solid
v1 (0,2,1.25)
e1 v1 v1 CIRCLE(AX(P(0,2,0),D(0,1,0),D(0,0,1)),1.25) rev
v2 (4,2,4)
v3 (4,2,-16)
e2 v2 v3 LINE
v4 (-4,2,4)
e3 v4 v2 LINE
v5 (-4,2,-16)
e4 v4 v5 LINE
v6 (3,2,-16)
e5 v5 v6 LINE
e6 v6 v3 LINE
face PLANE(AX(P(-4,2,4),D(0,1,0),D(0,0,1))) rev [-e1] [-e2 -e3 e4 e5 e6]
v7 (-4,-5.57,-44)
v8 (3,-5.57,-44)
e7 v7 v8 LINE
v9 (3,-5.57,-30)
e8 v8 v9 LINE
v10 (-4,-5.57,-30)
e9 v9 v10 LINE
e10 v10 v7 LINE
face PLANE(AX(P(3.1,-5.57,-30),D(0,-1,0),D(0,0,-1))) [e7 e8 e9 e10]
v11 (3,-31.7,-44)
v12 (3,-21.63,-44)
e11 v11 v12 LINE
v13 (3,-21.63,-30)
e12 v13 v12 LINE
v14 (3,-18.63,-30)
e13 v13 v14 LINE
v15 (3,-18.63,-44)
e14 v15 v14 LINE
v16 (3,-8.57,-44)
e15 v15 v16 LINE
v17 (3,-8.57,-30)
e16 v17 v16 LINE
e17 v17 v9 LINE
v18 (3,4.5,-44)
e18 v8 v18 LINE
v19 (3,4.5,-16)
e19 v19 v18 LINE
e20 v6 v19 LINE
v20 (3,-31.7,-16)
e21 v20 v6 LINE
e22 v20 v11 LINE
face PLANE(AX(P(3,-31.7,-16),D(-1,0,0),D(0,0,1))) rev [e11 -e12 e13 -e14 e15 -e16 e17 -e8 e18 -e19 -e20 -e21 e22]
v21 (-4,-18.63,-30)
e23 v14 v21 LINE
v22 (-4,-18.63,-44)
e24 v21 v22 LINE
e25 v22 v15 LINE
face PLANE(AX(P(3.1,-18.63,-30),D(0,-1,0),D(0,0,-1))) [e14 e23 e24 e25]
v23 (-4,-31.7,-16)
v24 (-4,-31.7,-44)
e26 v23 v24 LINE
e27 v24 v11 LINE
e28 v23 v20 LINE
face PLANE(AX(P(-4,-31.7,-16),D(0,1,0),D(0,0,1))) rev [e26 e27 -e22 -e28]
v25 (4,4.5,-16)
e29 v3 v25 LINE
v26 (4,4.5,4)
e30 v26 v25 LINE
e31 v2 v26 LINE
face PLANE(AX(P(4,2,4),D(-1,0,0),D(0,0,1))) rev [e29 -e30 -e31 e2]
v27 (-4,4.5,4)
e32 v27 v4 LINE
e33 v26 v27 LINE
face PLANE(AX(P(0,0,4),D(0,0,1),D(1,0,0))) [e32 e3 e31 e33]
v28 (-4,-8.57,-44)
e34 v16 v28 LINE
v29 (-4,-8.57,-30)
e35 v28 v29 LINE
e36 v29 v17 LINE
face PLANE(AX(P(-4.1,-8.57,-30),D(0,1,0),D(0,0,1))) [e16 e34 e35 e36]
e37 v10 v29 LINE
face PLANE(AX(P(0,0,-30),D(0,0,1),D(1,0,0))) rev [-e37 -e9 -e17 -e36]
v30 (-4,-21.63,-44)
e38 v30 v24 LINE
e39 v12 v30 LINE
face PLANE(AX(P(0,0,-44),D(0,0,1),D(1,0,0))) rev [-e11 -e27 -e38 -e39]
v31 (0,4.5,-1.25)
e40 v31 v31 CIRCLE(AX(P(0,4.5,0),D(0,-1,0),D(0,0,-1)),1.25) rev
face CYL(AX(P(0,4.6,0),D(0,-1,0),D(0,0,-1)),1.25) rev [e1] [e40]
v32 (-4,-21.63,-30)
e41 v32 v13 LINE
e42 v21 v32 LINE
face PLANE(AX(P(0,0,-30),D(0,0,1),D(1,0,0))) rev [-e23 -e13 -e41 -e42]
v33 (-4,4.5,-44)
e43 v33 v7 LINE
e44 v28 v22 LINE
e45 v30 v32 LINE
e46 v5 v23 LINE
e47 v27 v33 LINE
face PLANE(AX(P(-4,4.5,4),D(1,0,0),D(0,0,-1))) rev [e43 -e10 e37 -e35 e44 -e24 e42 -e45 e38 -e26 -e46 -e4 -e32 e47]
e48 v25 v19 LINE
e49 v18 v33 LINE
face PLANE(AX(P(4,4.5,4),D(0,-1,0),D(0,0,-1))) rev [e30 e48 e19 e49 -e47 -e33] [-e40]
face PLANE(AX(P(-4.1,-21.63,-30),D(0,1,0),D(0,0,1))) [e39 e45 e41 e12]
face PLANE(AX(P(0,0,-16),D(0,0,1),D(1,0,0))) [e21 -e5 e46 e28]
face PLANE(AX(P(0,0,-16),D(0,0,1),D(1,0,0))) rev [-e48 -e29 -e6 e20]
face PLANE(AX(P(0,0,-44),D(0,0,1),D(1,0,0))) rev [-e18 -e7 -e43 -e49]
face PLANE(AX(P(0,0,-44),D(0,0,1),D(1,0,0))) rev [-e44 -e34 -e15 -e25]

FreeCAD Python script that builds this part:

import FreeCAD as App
import Part
import Sketcher
from FreeCAD import Vector

doc = App.newDocument("Part")
body = doc.addObject("PartDesign::Body", "Body")

sketch1 = body.newObject("Sketcher::SketchObject", "Sketch")
sketch1.AttachmentSupport = (doc.getObject("XY_Plane"), [""])
sketch1.MapMode = "FlatFace"
sketch1.AttachmentOffset = App.Placement(Vector(0, 0, -16), App.Rotation())
sketch1.addGeometry([
    Part.LineSegment(Vector(-4, 4.5, 0), Vector(-4, 2, 0)),
    Part.LineSegment(Vector(-4, 2, 0), Vector(4, 2, 0)),
    Part.LineSegment(Vector(4, 2, 0), Vector(4, 4.5, 0)),
    Part.LineSegment(Vector(4, 4.5, 0), Vector(-4, 4.5, 0)),
], False)
sketch1.addConstraint([
    Sketcher.Constraint("Coincident", 0, 2, 1, 1),
    Sketcher.Constraint("Coincident", 1, 2, 2, 1),
    Sketcher.Constraint("Coincident", 2, 2, 3, 1),
    Sketcher.Constraint("Coincident", 3, 2, 0, 1),
    Sketcher.Constraint("Vertical", 0),
    Sketcher.Constraint("Horizontal", 1),
    Sketcher.Constraint("Vertical", 2),
    Sketcher.Constraint("Horizontal", 3),
    Sketcher.Constraint("DistanceX", 1, 1, 1, 2, 8.0),
    Sketcher.Constraint("DistanceY", 0, 2, 0, 1, 2.5),
    Sketcher.Constraint("DistanceX", 0, 2, -1, 1, 4.0),
    Sketcher.Constraint("DistanceY", -1, 1, 0, 2, 2.0),
])
pad1 = body.newObject("PartDesign::Pad", "Pad")
pad1.Profile = sketch1
pad1.Length = 20

sketch2 = body.newObject("Sketcher::SketchObject", "Sketch001")
sketch2.AttachmentSupport = (doc.getObject("XY_Plane"), [""])
sketch2.MapMode = "FlatFace"
sketch2.AttachmentOffset = App.Placement(Vector(0, 0, -44), App.Rotation())
sketch2.addGeometry([
    Part.LineSegment(Vector(-4, 4, 0), Vector(-4, -32, 0)),
    Part.LineSegment(Vector(-4, -32, 0), Vector(3, -32, 0)),
    Part.LineSegment(Vector(3, -32, 0), Vector(3, 4, 0)),
    Part.LineSegment(Vector(3, 4, 0), Vector(-4, 4, 0)),
], False)
sketch2.addConstraint([
    Sketcher.Constraint("Coincident", 0, 2, 1, 1),
    Sketcher.Constraint("Coincident", 1, 2, 2, 1),
    Sketcher.Constraint("Coincident", 2, 2, 3, 1),
    Sketcher.Constraint("Coincident", 3, 2, 0, 1),
    Sketcher.Constraint("Vertical", 0),
    Sketcher.Constraint("Horizontal", 1),
    Sketcher.Constraint("Vertical", 2),
    Sketcher.Constraint("Horizontal", 3),
    Sketcher.Constraint("DistanceX", 1, 1, 1, 2, 7.0),
    Sketcher.Constraint("DistanceY", 0, 2, 0, 1, 36.2),
    Sketcher.Constraint("DistanceX", 0, 2, -1, 1, 4.0),
    Sketcher.Constraint("DistanceY", 0, 2, -1, 1, 31.7),
])
pad2 = body.newObject("PartDesign::Pad", "Pad001")
pad2.Profile = sketch2
pad2.Length = 28

sketch3 = body.newObject("Sketcher::SketchObject", "Sketch002")
sketch3.AttachmentSupport = (doc.getObject("XZ_Plane"), [""])
sketch3.MapMode = "FlatFace"
sketch3.AttachmentOffset = App.Placement(Vector(0, 0, -1.9), App.Rotation())
sketch3.addGeometry(Part.Circle(Vector(0, 0, 0), Vector(0, 0, 1), 1.2), False)
sketch3.addConstraint([
    Sketcher.Constraint("Coincident", 0, 3, -1, 1),
    Sketcher.Constraint("Diameter", 0, 2.5),
])
pocket1 = body.newObject("PartDesign::Pocket", "Pocket")
pocket1.Profile = sketch3
pocket1.Length = 2.7

sketch4 = body.newObject("Sketcher::SketchObject", "Sketch003")
sketch4.AttachmentSupport = (doc.getObject("XY_Plane"), [""])
sketch4.MapMode = "FlatFace"
sketch4.AttachmentOffset = App.Placement(Vector(0, 0, -44.1), App.Rotation())
sketch4.addGeometry([
    Part.LineSegment(Vector(-4.1, -5.6, 0), Vector(-4.1, -8.6, 0)),
    Part.LineSegment(Vector(-4.1, -8.6, 0), Vector(3.1, -8.6, 0)),
    Part.LineSegment(Vector(3.1, -8.6, 0), Vector(3.1, -5.6, 0)),
    Part.LineSegment(Vector(3.1, -5.6, 0), Vector(-4.1, -5.6, 0)),
], False)
sketch4.addConstraint([
    Sketcher.Constraint("Coincident", 0, 2, 1, 1),
    Sketcher.Constraint("Coincident", 1, 2, 2, 1),
    Sketcher.Constraint("Coincident", 2, 2, 3, 1),
    Sketcher.Constraint("Coincident", 3, 2, 0, 1),
    Sketcher.Constraint("Vertical", 0),
    Sketcher.Constraint("Horizontal", 1),
    Sketcher.Constraint("Vertical", 2),
    Sketcher.Constraint("Horizontal", 3),
    Sketcher.Constraint("DistanceY", 0, 2, 0, 1, 3.0),
    Sketcher.Constraint("DistanceX", 1, 1, 1, 2, 7.2),
    Sketcher.Constraint("DistanceX", 0, 2, -1, 1, 4.1),
    Sketcher.Constraint("DistanceY", 0, 2, -1, 1, 8.57),
])
pocket2 = body.newObject("PartDesign::Pocket", "Pocket001")
pocket2.Profile = sketch4
pocket2.Length = 14.1
pocket2.Reversed = True

sketch5 = body.newObject("Sketcher::SketchObject", "Sketch004")
sketch5.AttachmentSupport = (doc.getObject("XY_Plane"), [""])
sketch5.MapMode = "FlatFace"
sketch5.AttachmentOffset = App.Placement(Vector(0, 0, -44.1), App.Rotation())
sketch5.addGeometry([
    Part.LineSegment(Vector(-4.1, -18.6, 0), Vector(-4.1, -21.6, 0)),
    Part.LineSegment(Vector(-4.1, -21.6, 0), Vector(3.1, -21.6, 0)),
    Part.LineSegment(Vector(3.1, -21.6, 0), Vector(3.1, -18.6, 0)),
    Part.LineSegment(Vector(3.1, -18.6, 0), Vector(-4.1, -18.6, 0)),
], False)
sketch5.addConstraint([
    Sketcher.Constraint("Coincident", 0, 2, 1, 1),
    Sketcher.Constraint("Coincident", 1, 2, 2, 1),
    Sketcher.Constraint("Coincident", 2, 2, 3, 1),
    Sketcher.Constraint("Coincident", 3, 2, 0, 1),
    Sketcher.Constraint("Vertical", 0),
    Sketcher.Constraint("Horizontal", 1),
    Sketcher.Constraint("Vertical", 2),
    Sketcher.Constraint("Horizontal", 3),
    Sketcher.Constraint("DistanceY", 0, 2, 0, 1, 3.0),
    Sketcher.Constraint("DistanceX", 1, 1, 1, 2, 7.2),
    Sketcher.Constraint("DistanceX", 0, 2, -1, 1, 4.1),
    Sketcher.Constraint("DistanceY", 0, 2, -1, 1, 21.63),
])
pocket3 = body.newObject("PartDesign::Pocket", "Pocket002")
pocket3.Profile = sketch5
pocket3.Length = 14.1
pocket3.Reversed = True

doc.recompute()
